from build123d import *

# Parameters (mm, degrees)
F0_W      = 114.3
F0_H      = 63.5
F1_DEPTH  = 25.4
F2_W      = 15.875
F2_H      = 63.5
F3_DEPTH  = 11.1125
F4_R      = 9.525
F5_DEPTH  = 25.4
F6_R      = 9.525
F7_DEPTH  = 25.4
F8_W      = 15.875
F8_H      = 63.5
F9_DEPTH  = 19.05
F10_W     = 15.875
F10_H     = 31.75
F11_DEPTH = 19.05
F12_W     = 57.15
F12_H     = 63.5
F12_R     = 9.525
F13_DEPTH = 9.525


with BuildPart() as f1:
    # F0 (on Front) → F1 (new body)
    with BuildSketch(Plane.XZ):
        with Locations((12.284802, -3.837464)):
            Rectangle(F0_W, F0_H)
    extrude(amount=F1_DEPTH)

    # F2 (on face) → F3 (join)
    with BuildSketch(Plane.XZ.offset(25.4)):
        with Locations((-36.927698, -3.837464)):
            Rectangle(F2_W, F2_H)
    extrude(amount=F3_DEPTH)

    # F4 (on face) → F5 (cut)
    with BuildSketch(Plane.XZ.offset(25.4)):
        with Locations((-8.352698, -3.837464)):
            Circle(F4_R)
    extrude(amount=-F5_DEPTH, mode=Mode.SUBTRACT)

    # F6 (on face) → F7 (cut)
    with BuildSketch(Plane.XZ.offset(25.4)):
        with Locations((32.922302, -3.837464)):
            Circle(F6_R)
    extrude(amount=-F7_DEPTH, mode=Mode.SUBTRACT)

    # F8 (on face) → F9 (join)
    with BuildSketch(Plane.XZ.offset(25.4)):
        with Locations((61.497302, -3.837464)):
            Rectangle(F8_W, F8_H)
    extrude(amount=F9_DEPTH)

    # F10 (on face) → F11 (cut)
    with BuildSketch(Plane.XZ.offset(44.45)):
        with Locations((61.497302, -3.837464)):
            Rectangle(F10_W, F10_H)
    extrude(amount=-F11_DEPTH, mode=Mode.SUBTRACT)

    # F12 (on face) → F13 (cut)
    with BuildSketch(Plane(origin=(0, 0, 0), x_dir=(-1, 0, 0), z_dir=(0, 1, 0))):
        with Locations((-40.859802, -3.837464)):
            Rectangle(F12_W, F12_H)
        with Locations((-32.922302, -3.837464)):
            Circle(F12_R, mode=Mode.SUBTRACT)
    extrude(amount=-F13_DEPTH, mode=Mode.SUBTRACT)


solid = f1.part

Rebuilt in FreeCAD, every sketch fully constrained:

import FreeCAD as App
import Part
import Sketcher
Q = App.Units.Quantity

doc = App.newDocument("Part")
params = doc.addObject("Spreadsheet::Sheet", "Params")
for row, (alias, value) in enumerate([
    ("sketch1_width", "4.5 in"),
    ("sketch1_height", "2.5 in"),
    ("pad1_length", "1 in"),
    ("sketch2_height", "2.5 in"),
    ("sketch2_width", "0.625 in"),
    ("pad2_length", "0.4375 in"),
    ("sketch3_diameter", "0.75 in"),
    ("pocket1_length", "1 in"),
    ("sketch4_diameter", "0.75 in"),
    ("pocket2_length", "1 in"),
    ("sketch5_height", "2.5 in"),
    ("sketch5_width", "0.625 in"),
    ("pad3_length", "0.75 in"),
    ("sketch6_height", "1.25 in"),
    ("sketch6_width", "0.625 in"),
    ("pocket3_length", "0.75 in"),
    ("sketch7_diameter", "0.75 in"),
    ("sketch7_height", "2.5 in"),
    ("sketch7_width", "2.25 in"),
    ("pocket4_length", "0.375 in"),
], start=1):
    params.set(f"A{row}", alias)
    params.set(f"B{row}", "=" + value)
    params.setAlias(f"B{row}", alias)

body = doc.addObject("PartDesign::Body", "Body")

# Sketch on XZ plane
sketch1 = body.newObject("Sketcher::SketchObject", "Sketch")
sketch1.AttachmentSupport = (doc.getObject("XZ_Plane"), [""])
sketch1.MapMode = "FlatFace"
sketch1.addGeometry(Part.LineSegment(App.Vector(-45, 28, 0), App.Vector(-45, -36, 0)), False)
sketch1.addGeometry(Part.LineSegment(App.Vector(-45, -36, 0), App.Vector(69, -36, 0)), False)
sketch1.addGeometry(Part.LineSegment(App.Vector(69, -36, 0), App.Vector(69, 28, 0)), False)
sketch1.addGeometry(Part.LineSegment(App.Vector(69, 28, 0), App.Vector(-45, 28, 0)), False)
sketch1.addConstraint(Sketcher.Constraint("Coincident", 0, 2, 1, 1))
sketch1.addConstraint(Sketcher.Constraint("Coincident", 1, 2, 2, 1))
sketch1.addConstraint(Sketcher.Constraint("Coincident", 2, 2, 3, 1))
sketch1.addConstraint(Sketcher.Constraint("Coincident", 3, 2, 0, 1))
sketch1.addConstraint(Sketcher.Constraint("Vertical", 0))
sketch1.addConstraint(Sketcher.Constraint("Horizontal", 1))
sketch1.addConstraint(Sketcher.Constraint("Vertical", 2))
sketch1.addConstraint(Sketcher.Constraint("Horizontal", 3))
sketch1.addConstraint(Sketcher.Constraint("DistanceX", 1, 1, 1, 2, Q("4.5 in")))
sketch1.addConstraint(Sketcher.Constraint("DistanceY", 0, 2, 0, 1, Q("2.5 in")))
sketch1.addConstraint(Sketcher.Constraint("DistanceX", 0, 2, -1, 1, Q("44.865198 mm")))
sketch1.addConstraint(Sketcher.Constraint("DistanceY", 0, 2, -1, 1, Q("35.587464 mm")))
sketch1.setExpression("Constraints[8]", "Params.sketch1_width")
sketch1.setExpression("Constraints[9]", "Params.sketch1_height")
pad1 = body.newObject("PartDesign::Pad", "Pad")
pad1.Profile = sketch1
pad1.setExpression("Length", "Params.pad1_length")

# Sketch on XZ plane
sketch2 = body.newObject("Sketcher::SketchObject", "Sketch001")
sketch2.AttachmentSupport = (doc.getObject("XZ_Plane"), [""])
sketch2.MapMode = "FlatFace"
sketch2.AttachmentOffset = App.Placement(App.Vector(0, 0, 1 * 25.4), App.Rotation())
sketch2.addGeometry(Part.LineSegment(App.Vector(-45, 28, 0), App.Vector(-45, -36, 0)), False)
sketch2.addGeometry(Part.LineSegment(App.Vector(-45, -36, 0), App.Vector(-29, -36, 0)), False)
sketch2.addGeometry(Part.LineSegment(App.Vector(-29, -36, 0), App.Vector(-29, 28, 0)), False)
sketch2.addGeometry(Part.LineSegment(App.Vector(-29, 28, 0), App.Vector(-45, 28, 0)), False)
sketch2.addConstraint(Sketcher.Constraint("Coincident", 0, 2, 1, 1))
sketch2.addConstraint(Sketcher.Constraint("Coincident", 1, 2, 2, 1))
sketch2.addConstraint(Sketcher.Constraint("Coincident", 2, 2, 3, 1))
sketch2.addConstraint(Sketcher.Constraint("Coincident", 3, 2, 0, 1))
sketch2.addConstraint(Sketcher.Constraint("Vertical", 0))
sketch2.addConstraint(Sketcher.Constraint("Horizontal", 1))
sketch2.addConstraint(Sketcher.Constraint("Vertical", 2))
sketch2.addConstraint(Sketcher.Constraint("Horizontal", 3))
sketch2.addConstraint(Sketcher.Constraint("DistanceY", 0, 2, 0, 1, Q("2.5 in")))
sketch2.addConstraint(Sketcher.Constraint("DistanceX", 1, 1, 1, 2, Q("0.625 in")))
sketch2.addConstraint(Sketcher.Constraint("DistanceX", 0, 2, -1, 1, Q("44.865198 mm")))
sketch2.addConstraint(Sketcher.Constraint("DistanceY", 0, 2, -1, 1, Q("35.587464 mm")))
sketch2.setExpression("Constraints[8]", "Params.sketch2_height")
sketch2.setExpression("Constraints[9]", "Params.sketch2_width")
pad2 = body.newObject("PartDesign::Pad", "Pad001")
pad2.Profile = sketch2
pad2.setExpression("Length", "Params.pad2_length")

# Sketch on XZ plane
sketch3 = body.newObject("Sketcher::SketchObject", "Sketch002")
sketch3.AttachmentSupport = (doc.getObject("XZ_Plane"), [""])
sketch3.MapMode = "FlatFace"
sketch3.AttachmentOffset = App.Placement(App.Vector(0, 0, 1 * 25.4), App.Rotation())
sketch3.addGeometry(Part.Circle(App.Vector(-8, -4, 0), App.Vector(0, 0, 1), 10), False)
sketch3.addConstraint(Sketcher.Constraint("Diameter", 0, Q("0.75 in")))
sketch3.addConstraint(Sketcher.Constraint("DistanceX", 0, 3, -1, 1, Q("8.352698 mm")))
sketch3.addConstraint(Sketcher.Constraint("DistanceY", 0, 3, -1, 1, Q("3.837464 mm")))
sketch3.setExpression("Constraints[0]", "Params.sketch3_diameter")
pocket1 = body.newObject("PartDesign::Pocket", "Pocket")
pocket1.Profile = sketch3
pocket1.setExpression("Length", "Params.pocket1_length")

# Sketch on XZ plane
sketch4 = body.newObject("Sketcher::SketchObject", "Sketch003")
sketch4.AttachmentSupport = (doc.getObject("XZ_Plane"), [""])
sketch4.MapMode = "FlatFace"
sketch4.AttachmentOffset = App.Placement(App.Vector(0, 0, 1 * 25.4), App.Rotation())
sketch4.addGeometry(Part.Circle(App.Vector(33, -4, 0), App.Vector(0, 0, 1), 10), False)
sketch4.addConstraint(Sketcher.Constraint("Diameter", 0, Q("0.75 in")))
sketch4.addConstraint(Sketcher.Constraint("DistanceX", -1, 1, 0, 3, Q("32.922302 mm")))
sketch4.addConstraint(Sketcher.Constraint("DistanceY", 0, 3, -1, 1, Q("3.837464 mm")))
sketch4.setExpression("Constraints[0]", "Params.sketch4_diameter")
pocket2 = body.newObject("PartDesign::Pocket", "Pocket001")
pocket2.Profile = sketch4
pocket2.setExpression("Length", "Params.pocket2_length")

# Sketch on XZ plane
sketch5 = body.newObject("Sketcher::SketchObject", "Sketch004")
sketch5.AttachmentSupport = (doc.getObject("XZ_Plane"), [""])
sketch5.MapMode = "FlatFace"
sketch5.AttachmentOffset = App.Placement(App.Vector(0, 0, 1 * 25.4), App.Rotation())
sketch5.addGeometry(Part.LineSegment(App.Vector(54, 28, 0), App.Vector(54, -36, 0)), False)
sketch5.addGeometry(Part.LineSegment(App.Vector(54, -36, 0), App.Vector(69, -36, 0)), False)
sketch5.addGeometry(Part.LineSegment(App.Vector(69, -36, 0), App.Vector(69, 28, 0)), False)
sketch5.addGeometry(Part.LineSegment(App.Vector(69, 28, 0), App.Vector(54, 28, 0)), False)
sketch5.addConstraint(Sketcher.Constraint("Coincident", 0, 2, 1, 1))
sketch5.addConstraint(Sketcher.Constraint("Coincident", 1, 2, 2, 1))
sketch5.addConstraint(Sketcher.Constraint("Coincident", 2, 2, 3, 1))
sketch5.addConstraint(Sketcher.Constraint("Coincident", 3, 2, 0, 1))
sketch5.addConstraint(Sketcher.Constraint("Vertical", 0))
sketch5.addConstraint(Sketcher.Constraint("Horizontal", 1))
sketch5.addConstraint(Sketcher.Constraint("Vertical", 2))
sketch5.addConstraint(Sketcher.Constraint("Horizontal", 3))
sketch5.addConstraint(Sketcher.Constraint("DistanceY", 0, 2, 0, 1, Q("2.5 in")))
sketch5.addConstraint(Sketcher.Constraint("DistanceX", 1, 1, 1, 2, Q("0.625 in")))
sketch5.addConstraint(Sketcher.Constraint("DistanceX", -1, 1, 0, 2, Q("53.559802 mm")))
sketch5.addConstraint(Sketcher.Constraint("DistanceY", 0, 2, -1, 1, Q("35.587464 mm")))
sketch5.setExpression("Constraints[8]", "Params.sketch5_height")
sketch5.setExpression("Constraints[9]", "Params.sketch5_width")
pad3 = body.newObject("PartDesign::Pad", "Pad002")
pad3.Profile = sketch5
pad3.setExpression("Length", "Params.pad3_length")

# Sketch on XZ plane
sketch6 = body.newObject("Sketcher::SketchObject", "Sketch005")
sketch6.AttachmentSupport = (doc.getObject("XZ_Plane"), [""])
sketch6.MapMode = "FlatFace"
sketch6.AttachmentOffset = App.Placement(App.Vector(0, 0, 1.75 * 25.4), App.Rotation())
sketch6.addGeometry(Part.LineSegment(App.Vector(54, 12, 0), App.Vector(54, -20, 0)), False)
sketch6.addGeometry(Part.LineSegment(App.Vector(54, -20, 0), App.Vector(69, -20, 0)), False)
sketch6.addGeometry(Part.LineSegment(App.Vector(69, -20, 0), App.Vector(69, 12, 0)), False)
sketch6.addGeometry(Part.LineSegment(App.Vector(69, 12, 0), App.Vector(54, 12, 0)), False)
sketch6.addConstraint(Sketcher.Constraint("Coincident", 0, 2, 1, 1))
sketch6.addConstraint(Sketcher.Constraint("Coincident", 1, 2, 2, 1))
sketch6.addConstraint(Sketcher.Constraint("Coincident", 2, 2, 3, 1))
sketch6.addConstraint(Sketcher.Constraint("Coincident", 3, 2, 0, 1))
sketch6.addConstraint(Sketcher.Constraint("Vertical", 0))
sketch6.addConstraint(Sketcher.Constraint("Horizontal", 1))
sketch6.addConstraint(Sketcher.Constraint("Vertical", 2))
sketch6.addConstraint(Sketcher.Constraint("Horizontal", 3))
sketch6.addConstraint(Sketcher.Constraint("DistanceY", 0, 2, 0, 1, Q("1.25 in")))
sketch6.addConstraint(Sketcher.Constraint("DistanceX", 1, 1, 1, 2, Q("0.625 in")))
sketch6.addConstraint(Sketcher.Constraint("DistanceX", -1, 1, 0, 2, Q("53.559802 mm")))
sketch6.addConstraint(Sketcher.Constraint("DistanceY", 0, 2, -1, 1, Q("19.712464 mm")))
sketch6.setExpression("Constraints[8]", "Params.sketch6_height")
sketch6.setExpression("Constraints[9]", "Params.sketch6_width")
pocket3 = body.newObject("PartDesign::Pocket", "Pocket002")
pocket3.Profile = sketch6
pocket3.setExpression("Length", "Params.pocket3_length")

# Sketch on XZ plane
sketch7 = body.newObject("Sketcher::SketchObject", "Sketch006")
sketch7.AttachmentSupport = (doc.getObject("XZ_Plane"), [""])
sketch7.MapMode = "FlatFace"
sketch7.addGeometry(Part.LineSegment(App.Vector(69, 28, 0), App.Vector(69, -36, 0)), False)
sketch7.addGeometry(Part.LineSegment(App.Vector(69, -36, 0), App.Vector(12, -36, 0)), False)
sketch7.addGeometry(Part.LineSegment(App.Vector(12, -36, 0), App.Vector(12, 28, 0)), False)
sketch7.addGeometry(Part.LineSegment(App.Vector(12, 28, 0), App.Vector(69, 28, 0)), False)
sketch7.addGeometry(Part.Circle(App.Vector(33, -4, 0), App.Vector(0, 0, 1), 10), False)
sketch7.addConstraint(Sketcher.Constraint("Coincident", 0, 2, 1, 1))
sketch7.addConstraint(Sketcher.Constraint("Coincident", 1, 2, 2, 1))
sketch7.addConstraint(Sketcher.Constraint("Coincident", 2, 2, 3, 1))
sketch7.addConstraint(Sketcher.Constraint("Coincident", 3, 2, 0, 1))
sketch7.addConstraint(Sketcher.Constraint("Vertical", 0))
sketch7.addConstraint(Sketcher.Constraint("Horizontal", 1))
sketch7.addConstraint(Sketcher.Constraint("Vertical", 2))
sketch7.addConstraint(Sketcher.Constraint("Horizontal", 3))
sketch7.addConstraint(Sketcher.Constraint("Diameter", 4, Q("0.75 in")))
sketch7.addConstraint(Sketcher.Constraint("DistanceY", 0, 2, 0, 1, Q("2.5 in")))
sketch7.addConstraint(Sketcher.Constraint("DistanceX", 1, 2, 1, 1, Q("2.25 in")))
sketch7.addConstraint(Sketcher.Constraint("DistanceY", 0, 2, 4, 3, Q("1.25 in")))
sketch7.addConstraint(Sketcher.Constraint("DistanceX", 4, 3, 0, 2, Q("1.4375 in")))
sketch7.addConstraint(Sketcher.Constraint("DistanceX", -1, 1, 4, 3, Q("32.922302 mm")))
sketch7.addConstraint(Sketcher.Constraint("DistanceY", 4, 3, -1, 1, Q("3.837464 mm")))
sketch7.setExpression("Constraints[8]", "Params.sketch7_diameter")
sketch7.setExpression("Constraints[9]", "Params.sketch7_height")
sketch7.setExpression("Constraints[10]", "Params.sketch7_width")
pocket4 = body.newObject("PartDesign::Pocket", "Pocket003")
pocket4.Profile = sketch7
pocket4.setExpression("Length", "Params.pocket4_length")
pocket4.Reversed = True

doc.recompute()
